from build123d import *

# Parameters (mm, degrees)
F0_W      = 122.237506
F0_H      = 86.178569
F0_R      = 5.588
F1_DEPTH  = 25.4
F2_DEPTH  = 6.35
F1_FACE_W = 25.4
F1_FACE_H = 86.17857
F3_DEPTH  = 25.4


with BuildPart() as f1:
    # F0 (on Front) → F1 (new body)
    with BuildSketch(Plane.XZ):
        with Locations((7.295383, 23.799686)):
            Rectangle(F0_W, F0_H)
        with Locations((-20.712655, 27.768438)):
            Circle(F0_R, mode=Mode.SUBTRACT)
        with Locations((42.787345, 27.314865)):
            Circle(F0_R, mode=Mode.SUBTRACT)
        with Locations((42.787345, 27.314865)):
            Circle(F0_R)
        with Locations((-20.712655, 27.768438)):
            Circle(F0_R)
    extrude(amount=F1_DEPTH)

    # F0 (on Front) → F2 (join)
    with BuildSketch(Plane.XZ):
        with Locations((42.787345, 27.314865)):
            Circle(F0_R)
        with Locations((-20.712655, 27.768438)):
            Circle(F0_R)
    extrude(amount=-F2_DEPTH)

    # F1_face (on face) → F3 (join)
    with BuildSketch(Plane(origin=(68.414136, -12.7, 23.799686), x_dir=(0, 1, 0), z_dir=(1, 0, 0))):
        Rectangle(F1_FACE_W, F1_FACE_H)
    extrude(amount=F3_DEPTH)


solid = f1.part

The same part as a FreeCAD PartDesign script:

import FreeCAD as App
import Part
import Sketcher
Q = App.Units.Quantity


def add_polygon(sketch, points):
    """Adds a closed chain of lines whose ends are joined by coincident constraints."""
    first, n = sketch.GeometryCount, len(points)
    for a, b in zip(points, points[1:] + points[:1]):
        sketch.addGeometry(Part.LineSegment(App.Vector(*a, 0), App.Vector(*b, 0)), False)
    for i in range(n):
        sketch.addConstraint(Sketcher.Constraint("Coincident", first + i, 2, first + (i + 1) % n, 1))

doc = App.newDocument("Part")
body = doc.addObject("PartDesign::Body", "Body")

sketch1 = doc.addObject("Sketcher::SketchObject", "Sketch")
body.addObject(sketch1)
sketch1.AttachmentSupport = (doc.XZ_Plane, [""])
sketch1.MapMode = "FlatFace"
add_polygon(sketch1, [(-54, 67), (-54, -19), (68, -19), (68, 67)])
sketch1.addConstraint(Sketcher.Constraint("Vertical", 0))
sketch1.addConstraint(Sketcher.Constraint("Horizontal", 1))
sketch1.addConstraint(Sketcher.Constraint("Vertical", 2))
sketch1.addConstraint(Sketcher.Constraint("Horizontal", 3))
sketch1.addConstraint(Sketcher.Constraint("DistanceY", 0, 2, 0, 1, Q("86.178569 mm")))
sketch1.addConstraint(Sketcher.Constraint("DistanceY", 0, 2, -1, 1, Q("19.289599 mm")))
sketch1.addConstraint(Sketcher.Constraint("DistanceX", 1, 1, 1, 2, Q("122.237506 mm")))
sketch1.addConstraint(Sketcher.Constraint("DistanceX", 0, 2, -1, 1, Q("53.82337 mm")))
pad1 = doc.addObject("PartDesign::Pad", "Pad")
body.addObject(pad1)
pad1.Profile = sketch1
pad1.Length = Q("1 in")

sketch2 = doc.addObject("Sketcher::SketchObject", "Sketch001")
body.addObject(sketch2)
sketch2.AttachmentSupport = (doc.XZ_Plane, [""])
sketch2.MapMode = "FlatFace"
sketch2.addGeometry(Part.Circle(App.Vector(43, 27, 0), App.Vector(0, 0, 1), 6), False)
sketch2.addGeometry(Part.Circle(App.Vector(-21, 28, 0), App.Vector(0, 0, 1), 6), False)
sketch2.addConstraint(Sketcher.Constraint("Equal", 0, 1))
sketch2.addConstraint(Sketcher.Constraint("Diameter", 0, Q("0.44 in")))
sketch2.addConstraint(Sketcher.Constraint("DistanceX", 1, 3, 0, 3, Q("2.5 in")))
sketch2.addConstraint(Sketcher.Constraint("DistanceY", -1, 1, 1, 3, Q("27.768438 mm")))
sketch2.addConstraint(Sketcher.Constraint("DistanceX", -1, 1, 0, 3, Q("42.787345 mm")))
sketch2.addConstraint(Sketcher.Constraint("DistanceY", -1, 1, 0, 3, Q("27.314865 mm")))
pad2 = doc.addObject("PartDesign::Pad", "Pad001")
body.addObject(pad2)
pad2.Profile = sketch2
pad2.Length = Q("0.25 in")
pad2.Reversed = True

sketch3 = doc.addObject("Sketcher::SketchObject", "Sketch002")
body.addObject(sketch3)
sketch3.AttachmentSupport = (doc.YZ_Plane, [""])
sketch3.MapMode = "FlatFace"
sketch3.AttachmentOffset = App.Placement(App.Vector(0, 0, 68.414136), App.Rotation())
add_polygon(sketch3, [(-25, 67), (-25, -19), (0, -19), (0, 67)])
sketch3.addConstraint(Sketcher.Constraint("Vertical", 0))
sketch3.addConstraint(Sketcher.Constraint("Horizontal", 1))
sketch3.addConstraint(Sketcher.Constraint("Vertical", 2))
sketch3.addConstraint(Sketcher.Constraint("Horizontal", 3))
sketch3.addConstraint(Sketcher.Constraint("PointOnObject", 1, 2, -2))
sketch3.addConstraint(Sketcher.Constraint("DistanceX", 1, 1, 1, 2, Q("1 in")))
sketch3.addConstraint(Sketcher.Constraint("DistanceY", 0, 2, 0, 1, Q("86.17857 mm")))
sketch3.addConstraint(Sketcher.Constraint("DistanceY", 0, 2, -1, 1, Q("19.289599 mm")))
pad3 = doc.addObject("PartDesign::Pad", "Pad002")
body.addObject(pad3)
pad3.Profile = sketch3
pad3.Length = Q("1 in")

doc.recompute()
